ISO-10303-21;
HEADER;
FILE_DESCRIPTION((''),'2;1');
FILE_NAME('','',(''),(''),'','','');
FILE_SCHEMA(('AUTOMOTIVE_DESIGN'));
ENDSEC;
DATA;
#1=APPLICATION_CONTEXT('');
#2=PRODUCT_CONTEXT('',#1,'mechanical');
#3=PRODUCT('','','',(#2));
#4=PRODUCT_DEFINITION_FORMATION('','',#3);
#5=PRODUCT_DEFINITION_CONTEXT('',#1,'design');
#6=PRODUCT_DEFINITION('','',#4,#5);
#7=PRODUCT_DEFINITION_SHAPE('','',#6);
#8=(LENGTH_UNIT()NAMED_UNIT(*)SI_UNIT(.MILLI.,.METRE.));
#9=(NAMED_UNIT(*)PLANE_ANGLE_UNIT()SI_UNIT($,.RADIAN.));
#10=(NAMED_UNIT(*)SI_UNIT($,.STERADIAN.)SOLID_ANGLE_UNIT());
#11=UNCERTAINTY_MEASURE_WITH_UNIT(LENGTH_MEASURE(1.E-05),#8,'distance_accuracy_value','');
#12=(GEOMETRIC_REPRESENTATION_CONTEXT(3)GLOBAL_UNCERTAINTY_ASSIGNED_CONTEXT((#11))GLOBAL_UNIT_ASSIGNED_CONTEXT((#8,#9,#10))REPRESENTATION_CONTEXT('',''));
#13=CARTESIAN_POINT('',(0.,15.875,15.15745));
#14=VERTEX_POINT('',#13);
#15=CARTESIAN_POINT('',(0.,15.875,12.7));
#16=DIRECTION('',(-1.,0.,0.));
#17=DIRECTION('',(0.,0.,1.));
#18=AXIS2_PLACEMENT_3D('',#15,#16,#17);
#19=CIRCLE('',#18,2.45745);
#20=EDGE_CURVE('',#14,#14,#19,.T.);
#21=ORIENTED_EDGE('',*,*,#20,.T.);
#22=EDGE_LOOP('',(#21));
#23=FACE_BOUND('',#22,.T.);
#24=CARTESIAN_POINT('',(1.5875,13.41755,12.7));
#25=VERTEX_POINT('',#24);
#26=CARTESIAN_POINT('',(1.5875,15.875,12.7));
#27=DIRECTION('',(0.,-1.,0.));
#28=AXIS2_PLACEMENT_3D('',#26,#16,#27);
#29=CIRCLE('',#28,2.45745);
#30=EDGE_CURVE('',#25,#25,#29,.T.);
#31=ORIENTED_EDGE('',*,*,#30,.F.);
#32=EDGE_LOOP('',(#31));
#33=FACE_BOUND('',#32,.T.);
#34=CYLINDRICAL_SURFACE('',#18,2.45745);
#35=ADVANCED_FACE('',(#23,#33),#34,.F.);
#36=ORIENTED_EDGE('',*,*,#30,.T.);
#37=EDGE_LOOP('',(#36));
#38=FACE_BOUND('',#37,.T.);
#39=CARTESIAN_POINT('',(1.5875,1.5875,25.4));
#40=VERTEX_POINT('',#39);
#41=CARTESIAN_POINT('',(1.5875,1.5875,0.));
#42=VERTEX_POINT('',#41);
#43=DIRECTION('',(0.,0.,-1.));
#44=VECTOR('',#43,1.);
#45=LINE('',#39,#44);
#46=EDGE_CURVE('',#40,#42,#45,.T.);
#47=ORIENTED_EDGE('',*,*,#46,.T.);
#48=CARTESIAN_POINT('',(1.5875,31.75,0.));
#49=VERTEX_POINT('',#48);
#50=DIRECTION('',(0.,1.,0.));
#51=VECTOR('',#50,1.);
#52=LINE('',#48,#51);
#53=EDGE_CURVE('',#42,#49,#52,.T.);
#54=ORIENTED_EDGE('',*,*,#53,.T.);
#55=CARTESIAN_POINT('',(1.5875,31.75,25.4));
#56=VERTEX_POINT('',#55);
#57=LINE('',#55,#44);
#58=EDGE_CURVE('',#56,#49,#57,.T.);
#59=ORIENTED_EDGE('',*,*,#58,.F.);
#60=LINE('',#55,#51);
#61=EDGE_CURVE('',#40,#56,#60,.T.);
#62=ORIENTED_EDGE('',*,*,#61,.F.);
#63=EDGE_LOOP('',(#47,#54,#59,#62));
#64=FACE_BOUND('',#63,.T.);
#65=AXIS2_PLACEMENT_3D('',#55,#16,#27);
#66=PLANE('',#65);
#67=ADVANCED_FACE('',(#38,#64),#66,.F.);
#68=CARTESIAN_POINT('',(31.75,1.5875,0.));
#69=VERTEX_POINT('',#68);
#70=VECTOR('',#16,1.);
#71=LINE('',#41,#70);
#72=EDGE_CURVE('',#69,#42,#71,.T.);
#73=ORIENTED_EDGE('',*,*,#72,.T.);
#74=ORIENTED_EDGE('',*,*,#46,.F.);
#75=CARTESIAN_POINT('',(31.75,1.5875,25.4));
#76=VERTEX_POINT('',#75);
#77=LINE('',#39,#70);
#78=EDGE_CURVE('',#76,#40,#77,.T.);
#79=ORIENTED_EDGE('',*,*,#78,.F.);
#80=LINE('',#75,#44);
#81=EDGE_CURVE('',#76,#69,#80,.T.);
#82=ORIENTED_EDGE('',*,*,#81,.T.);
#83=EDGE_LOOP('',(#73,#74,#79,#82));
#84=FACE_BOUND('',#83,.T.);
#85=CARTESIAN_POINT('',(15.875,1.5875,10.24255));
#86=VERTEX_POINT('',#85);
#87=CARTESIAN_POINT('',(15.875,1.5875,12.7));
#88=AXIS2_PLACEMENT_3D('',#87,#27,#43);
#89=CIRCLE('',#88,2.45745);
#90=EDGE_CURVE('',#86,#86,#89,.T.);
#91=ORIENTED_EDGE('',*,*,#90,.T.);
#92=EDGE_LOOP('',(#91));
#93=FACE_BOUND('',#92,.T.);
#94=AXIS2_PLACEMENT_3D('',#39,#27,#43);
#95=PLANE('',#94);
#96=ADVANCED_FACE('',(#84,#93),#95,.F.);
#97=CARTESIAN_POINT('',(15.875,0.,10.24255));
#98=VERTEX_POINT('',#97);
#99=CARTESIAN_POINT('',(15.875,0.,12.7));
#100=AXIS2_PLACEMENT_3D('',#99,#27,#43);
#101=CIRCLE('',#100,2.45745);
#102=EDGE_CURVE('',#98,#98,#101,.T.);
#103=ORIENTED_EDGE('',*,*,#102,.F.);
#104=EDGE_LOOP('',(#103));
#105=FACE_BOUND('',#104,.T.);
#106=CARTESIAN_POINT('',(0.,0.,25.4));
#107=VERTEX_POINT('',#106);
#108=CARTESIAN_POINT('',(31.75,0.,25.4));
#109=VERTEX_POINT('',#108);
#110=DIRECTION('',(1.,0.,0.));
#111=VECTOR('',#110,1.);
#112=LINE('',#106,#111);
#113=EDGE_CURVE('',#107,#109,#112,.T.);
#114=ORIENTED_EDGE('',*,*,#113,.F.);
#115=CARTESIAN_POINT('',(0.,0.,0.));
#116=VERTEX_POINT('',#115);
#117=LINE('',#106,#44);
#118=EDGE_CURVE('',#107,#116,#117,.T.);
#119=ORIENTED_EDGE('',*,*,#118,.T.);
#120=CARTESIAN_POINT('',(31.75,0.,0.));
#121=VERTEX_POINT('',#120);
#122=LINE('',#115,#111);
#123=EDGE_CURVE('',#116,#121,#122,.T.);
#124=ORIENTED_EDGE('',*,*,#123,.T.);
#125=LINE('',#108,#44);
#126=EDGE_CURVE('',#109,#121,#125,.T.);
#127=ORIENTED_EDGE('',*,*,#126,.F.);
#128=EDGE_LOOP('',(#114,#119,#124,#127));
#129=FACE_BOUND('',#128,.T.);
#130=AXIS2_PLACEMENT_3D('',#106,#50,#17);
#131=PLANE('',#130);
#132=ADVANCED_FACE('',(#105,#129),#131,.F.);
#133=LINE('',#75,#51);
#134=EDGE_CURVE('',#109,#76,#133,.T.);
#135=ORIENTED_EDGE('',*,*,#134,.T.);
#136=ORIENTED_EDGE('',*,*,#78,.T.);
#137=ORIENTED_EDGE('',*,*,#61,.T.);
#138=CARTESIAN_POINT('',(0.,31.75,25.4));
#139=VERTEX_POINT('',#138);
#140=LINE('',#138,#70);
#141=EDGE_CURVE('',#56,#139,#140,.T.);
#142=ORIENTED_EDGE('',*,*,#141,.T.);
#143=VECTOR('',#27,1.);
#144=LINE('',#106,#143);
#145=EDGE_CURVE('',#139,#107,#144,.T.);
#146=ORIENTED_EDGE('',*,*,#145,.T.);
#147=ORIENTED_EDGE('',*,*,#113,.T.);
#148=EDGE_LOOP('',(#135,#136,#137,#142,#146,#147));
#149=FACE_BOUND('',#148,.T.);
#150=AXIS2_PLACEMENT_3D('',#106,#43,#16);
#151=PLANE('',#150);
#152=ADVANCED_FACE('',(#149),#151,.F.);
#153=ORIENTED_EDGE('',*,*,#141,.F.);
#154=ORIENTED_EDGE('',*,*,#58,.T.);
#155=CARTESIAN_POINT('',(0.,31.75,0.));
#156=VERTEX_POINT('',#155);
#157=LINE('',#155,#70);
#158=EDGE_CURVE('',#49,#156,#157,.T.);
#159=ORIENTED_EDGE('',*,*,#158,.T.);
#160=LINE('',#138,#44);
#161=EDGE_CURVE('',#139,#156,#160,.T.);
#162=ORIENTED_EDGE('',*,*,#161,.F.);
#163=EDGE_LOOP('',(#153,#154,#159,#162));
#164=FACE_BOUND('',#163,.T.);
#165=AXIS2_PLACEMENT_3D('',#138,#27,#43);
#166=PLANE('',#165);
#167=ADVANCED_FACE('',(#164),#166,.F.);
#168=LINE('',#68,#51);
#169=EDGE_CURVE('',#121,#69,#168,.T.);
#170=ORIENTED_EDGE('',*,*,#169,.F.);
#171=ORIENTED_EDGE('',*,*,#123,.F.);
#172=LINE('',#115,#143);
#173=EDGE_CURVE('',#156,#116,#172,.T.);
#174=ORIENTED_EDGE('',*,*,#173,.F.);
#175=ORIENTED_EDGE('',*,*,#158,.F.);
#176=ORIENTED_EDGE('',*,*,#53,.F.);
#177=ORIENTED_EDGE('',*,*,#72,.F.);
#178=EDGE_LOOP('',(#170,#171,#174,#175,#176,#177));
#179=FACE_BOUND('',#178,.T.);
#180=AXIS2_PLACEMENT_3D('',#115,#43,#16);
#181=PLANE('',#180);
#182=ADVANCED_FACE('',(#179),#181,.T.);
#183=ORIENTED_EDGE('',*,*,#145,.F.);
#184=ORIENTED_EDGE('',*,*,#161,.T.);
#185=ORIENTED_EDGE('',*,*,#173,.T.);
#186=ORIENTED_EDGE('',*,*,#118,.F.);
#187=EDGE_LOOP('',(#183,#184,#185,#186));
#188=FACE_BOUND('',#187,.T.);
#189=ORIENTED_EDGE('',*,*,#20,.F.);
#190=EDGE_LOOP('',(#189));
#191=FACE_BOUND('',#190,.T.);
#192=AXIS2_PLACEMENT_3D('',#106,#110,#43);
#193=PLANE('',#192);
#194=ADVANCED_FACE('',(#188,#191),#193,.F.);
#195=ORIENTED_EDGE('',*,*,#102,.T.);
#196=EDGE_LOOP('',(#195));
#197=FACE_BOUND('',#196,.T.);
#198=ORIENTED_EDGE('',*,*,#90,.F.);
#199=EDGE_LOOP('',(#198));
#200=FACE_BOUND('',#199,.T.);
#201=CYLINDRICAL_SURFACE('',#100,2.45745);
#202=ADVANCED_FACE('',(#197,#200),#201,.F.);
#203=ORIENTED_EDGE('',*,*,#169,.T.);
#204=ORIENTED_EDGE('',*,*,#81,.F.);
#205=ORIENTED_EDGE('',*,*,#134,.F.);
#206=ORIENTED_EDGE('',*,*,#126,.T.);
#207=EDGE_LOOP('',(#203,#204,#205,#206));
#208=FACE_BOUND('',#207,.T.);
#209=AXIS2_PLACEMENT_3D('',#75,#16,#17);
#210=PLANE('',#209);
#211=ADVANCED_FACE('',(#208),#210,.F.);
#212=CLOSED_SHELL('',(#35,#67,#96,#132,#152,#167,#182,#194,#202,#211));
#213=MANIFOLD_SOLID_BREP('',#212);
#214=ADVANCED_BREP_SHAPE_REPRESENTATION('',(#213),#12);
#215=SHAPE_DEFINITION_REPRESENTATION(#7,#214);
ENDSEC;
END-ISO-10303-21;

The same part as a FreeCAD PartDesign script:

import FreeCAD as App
import Part
import Sketcher
Q = App.Units.Quantity


def add_polygon(sketch, points):
    """Adds a closed chain of lines whose ends are joined by coincident constraints."""
    first, n = sketch.GeometryCount, len(points)
    for a, b in zip(points, points[1:] + points[:1]):
        sketch.addGeometry(Part.LineSegment(App.Vector(*a, 0), App.Vector(*b, 0)), False)
    for i in range(n):
        sketch.addConstraint(Sketcher.Constraint("Coincident", first + i, 2, first + (i + 1) % n, 1))

doc = App.newDocument("Part")
body = doc.addObject("PartDesign::Body", "Body")

sketch1 = body.newObject("Sketcher::SketchObject", "Sketch")
sketch1.AttachmentSupport = (doc.getObject("XY_Plane"), [""])
sketch1.MapMode = "FlatFace"
add_polygon(sketch1, [(0, 31.8), (0, 0), (31.8, 0), (31.8, 1.6), (1.6, 1.6), (1.6, 31.8)])
sketch1.addConstraint(Sketcher.Constraint("Vertical", 0))
sketch1.addConstraint(Sketcher.Constraint("Horizontal", 1))
sketch1.addConstraint(Sketcher.Constraint("Vertical", 2))
sketch1.addConstraint(Sketcher.Constraint("Horizontal", 3))
sketch1.addConstraint(Sketcher.Constraint("Vertical", 4))
sketch1.addConstraint(Sketcher.Constraint("Horizontal", 5))
sketch1.addConstraint(Sketcher.Constraint("Coincident", 0, 2, -1, 1))
sketch1.addConstraint(Sketcher.Constraint("Equal", 1, 0))
sketch1.addConstraint(Sketcher.Constraint("Equal", 5, 2))
sketch1.addConstraint(Sketcher.Constraint("DistanceX", 1, 1, 1, 2, Q("1.25 in")))
sketch1.addConstraint(Sketcher.Constraint("DistanceX", 3, 2, 3, 1, Q("1.1875 in")))
pad1 = body.newObject("PartDesign::Pad", "Pad")
pad1.Profile = sketch1
pad1.Length = Q("1 in")

sketch2 = body.newObject("Sketcher::SketchObject", "Sketch001")
sketch2.AttachmentSupport = (doc.getObject("XZ_Plane"), [""])
sketch2.MapMode = "FlatFace"
sketch2.addGeometry(Part.Circle(App.Vector(15.9, 12.7, 0), App.Vector(0, 0, 1), 2.5), False)
sketch2.addConstraint(Sketcher.Constraint("Diameter", 0, Q("0.1935 in")))
sketch2.addConstraint(Sketcher.Constraint("DistanceY", -1, 1, 0, 3, Q("0.5 in")))
sketch2.addConstraint(Sketcher.Constraint("DistanceX", -1, 1, 0, 3, Q("0.625 in")))
doc.recompute()
hole = body.newObject("PartDesign::Hole", "Hole")
hole.Profile = sketch2
hole.ThreadType = "None"
hole.Diameter = Q("0.1935 in")
hole.DepthType = "ThroughAll"

sketch3 = body.newObject("Sketcher::SketchObject", "Sketch002")
sketch3.AttachmentSupport = (doc.getObject("YZ_Plane"), [""])
sketch3.MapMode = "FlatFace"
sketch3.addGeometry(Part.Circle(App.Vector(15.9, 12.7, 0), App.Vector(0, 0, 1), 2.5), False)
sketch3.addConstraint(Sketcher.Constraint("Diameter", 0, Q("0.1935 in")))
sketch3.addConstraint(Sketcher.Constraint("DistanceY", -1, 1, 0, 3, Q("0.5 in")))
sketch3.addConstraint(Sketcher.Constraint("DistanceX", -1, 1, 0, 3, Q("0.625 in")))
doc.recompute()
hole2 = body.newObject("PartDesign::Hole", "Hole001")
hole2.Profile = sketch3
hole2.ThreadType = "None"
hole2.Diameter = Q("0.1935 in")
hole2.DepthType = "ThroughAll"
hole2.Reversed = True

doc.recompute()
